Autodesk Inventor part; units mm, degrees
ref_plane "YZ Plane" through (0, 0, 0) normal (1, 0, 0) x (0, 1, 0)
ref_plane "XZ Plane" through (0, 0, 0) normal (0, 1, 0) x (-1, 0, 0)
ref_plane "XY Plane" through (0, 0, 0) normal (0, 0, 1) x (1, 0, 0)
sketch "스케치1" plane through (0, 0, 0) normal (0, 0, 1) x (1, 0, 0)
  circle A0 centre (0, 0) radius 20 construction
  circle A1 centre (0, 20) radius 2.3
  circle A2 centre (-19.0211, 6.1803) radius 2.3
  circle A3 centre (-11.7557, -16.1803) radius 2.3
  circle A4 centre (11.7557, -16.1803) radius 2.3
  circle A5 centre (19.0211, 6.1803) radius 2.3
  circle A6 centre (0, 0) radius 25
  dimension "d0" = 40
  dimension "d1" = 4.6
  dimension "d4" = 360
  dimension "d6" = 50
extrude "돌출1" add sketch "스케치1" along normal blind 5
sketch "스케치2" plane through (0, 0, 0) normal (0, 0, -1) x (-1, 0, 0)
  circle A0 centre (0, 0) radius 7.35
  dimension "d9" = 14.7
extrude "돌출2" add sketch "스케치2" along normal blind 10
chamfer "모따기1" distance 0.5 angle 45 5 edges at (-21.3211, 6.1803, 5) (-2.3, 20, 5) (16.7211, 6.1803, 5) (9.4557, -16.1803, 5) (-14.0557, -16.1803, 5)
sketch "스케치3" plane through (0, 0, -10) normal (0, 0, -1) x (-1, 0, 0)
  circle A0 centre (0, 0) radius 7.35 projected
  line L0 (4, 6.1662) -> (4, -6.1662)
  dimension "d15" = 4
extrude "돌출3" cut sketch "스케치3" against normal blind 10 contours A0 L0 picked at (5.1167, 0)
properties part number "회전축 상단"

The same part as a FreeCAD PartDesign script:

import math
import FreeCAD as App
import Part
import Sketcher

V = App.Vector
Q = App.Units.Quantity


def edges_at(feature, points):
    """Names of the edges that pass closest to the given points."""
    edges = feature.Shape.Edges
    near = lambda p: min(range(len(edges)), key=lambda i: edges[i].distToShape(Part.Vertex(*p))[0])
    return sorted({f"Edge{near(p) + 1}" for p in points})

doc = App.newDocument("Part")
body = doc.addObject("PartDesign::Body", "Body")

sketch1 = body.newObject("Sketcher::SketchObject", "Sketch")
sketch1.AttachmentSupport = (doc.getObject("XY_Plane"), [""])
sketch1.MapMode = "FlatFace"
sketch1.addGeometry([
    Part.Circle(V(0, 0, 0), V(0, 0, 1), 25),
    Part.Circle(V(-11.7557, -16.1803, 0), V(0, 0, 1), 2.3),
    Part.Circle(V(11.7557, -16.1803, 0), V(0, 0, 1), 2.3),
    Part.Circle(V(-19.0211, 6.1803, 0), V(0, 0, 1), 2.3),
    Part.Circle(V(19.0211, 6.1803, 0), V(0, 0, 1), 2.3),
    Part.Circle(V(0, 20, 0), V(0, 0, 1), 2.3),
], False)
sketch1.addConstraint([
    Sketcher.Constraint("Coincident", 0, 3, -1, 1),
    Sketcher.Constraint("Equal", 1, 2),
    Sketcher.Constraint("Equal", 2, 3),
    Sketcher.Constraint("Equal", 3, 4),
    Sketcher.Constraint("Equal", 4, 5),
    Sketcher.Constraint("Symmetric", 1, 3, 2, 3, -2),
    Sketcher.Constraint("Symmetric", 3, 3, 4, 3, -2),
    Sketcher.Constraint("PointOnObject", 5, 3, -2),
    Sketcher.Constraint("Diameter", 0, Q("50 mm")),
    Sketcher.Constraint("Diameter", 1, Q("4.6 mm")),
    Sketcher.Constraint("DistanceY", -1, 1, 5, 3, Q("20 mm")),
    Sketcher.Constraint("DistanceX", 3, 3, -1, 1, Q("19.021 mm")),
    Sketcher.Constraint("DistanceX", 1, 3, -1, 1, Q("11.7557 mm")),
    Sketcher.Constraint("DistanceY", 1, 3, -1, 1, Q("16.1803 mm")),
    Sketcher.Constraint("DistanceY", -1, 1, 3, 3, Q("6.1803 mm")),
])
pad1 = body.newObject("PartDesign::Pad", "Pad")
pad1.Profile = sketch1
pad1.Length = 5

sketch2 = body.newObject("Sketcher::SketchObject", "Sketch001")
sketch2.AttachmentSupport = (doc.getObject("XY_Plane"), [""])
sketch2.MapMode = "FlatFace"
sketch2.addGeometry(Part.Circle(V(0, 0, 0), V(0, 0, 1), 7.35), False)
sketch2.addConstraint([
    Sketcher.Constraint("Coincident", 0, 3, -1, 1),
    Sketcher.Constraint("Diameter", 0, Q("14.7 mm")),
])
pad2 = body.newObject("PartDesign::Pad", "Pad001")
pad2.Profile = sketch2
pad2.Length = 10
pad2.Reversed = True
doc.recompute()

chamfer = body.newObject("PartDesign::Chamfer", "Chamfer")
chamfer.Base = (pad2, edges_at(pad2, [
    (-21.321, 6.18, 5),
    (-2.3, 20, 5),
    (16.721, 6.18, 5),
    (9.456, -16.18, 5),
    (-14.056, -16.18, 5),
]))
chamfer.Size = 0.5

sketch3 = body.newObject("Sketcher::SketchObject", "Sketch002")
sketch3.AttachmentSupport = (doc.getObject("XY_Plane"), [""])
sketch3.MapMode = "FlatFace"
sketch3.AttachmentOffset = App.Placement(V(0, 0, -10), App.Rotation())
sketch3.addGeometry([
    Part.ArcOfCircle(Part.Circle(V(0, 0, 0), V(0, 0, 1), 7.35), math.radians(122.971384), math.radians(237.028616)),
    Part.LineSegment(V(-4, -6.1662, 0), V(-4, 6.1662, 0)),
], False)
sketch3.addConstraint([
    Sketcher.Constraint("Coincident", 0, 1, 1, 2),
    Sketcher.Constraint("Coincident", 1, 1, 0, 2),
    Sketcher.Constraint("Vertical", 1),
    Sketcher.Constraint("Coincident", 0, 3, -1, 1),
    Sketcher.Constraint("DistanceX", 0, 1, -1, 1, Q("4 mm")),
    Sketcher.Constraint("Radius", 0, Q("7.35 mm")),
])
pocket1 = body.newObject("PartDesign::Pocket", "Pocket")
pocket1.Profile = sketch3
pocket1.Length = 10
pocket1.Reversed = True

doc.recompute()
